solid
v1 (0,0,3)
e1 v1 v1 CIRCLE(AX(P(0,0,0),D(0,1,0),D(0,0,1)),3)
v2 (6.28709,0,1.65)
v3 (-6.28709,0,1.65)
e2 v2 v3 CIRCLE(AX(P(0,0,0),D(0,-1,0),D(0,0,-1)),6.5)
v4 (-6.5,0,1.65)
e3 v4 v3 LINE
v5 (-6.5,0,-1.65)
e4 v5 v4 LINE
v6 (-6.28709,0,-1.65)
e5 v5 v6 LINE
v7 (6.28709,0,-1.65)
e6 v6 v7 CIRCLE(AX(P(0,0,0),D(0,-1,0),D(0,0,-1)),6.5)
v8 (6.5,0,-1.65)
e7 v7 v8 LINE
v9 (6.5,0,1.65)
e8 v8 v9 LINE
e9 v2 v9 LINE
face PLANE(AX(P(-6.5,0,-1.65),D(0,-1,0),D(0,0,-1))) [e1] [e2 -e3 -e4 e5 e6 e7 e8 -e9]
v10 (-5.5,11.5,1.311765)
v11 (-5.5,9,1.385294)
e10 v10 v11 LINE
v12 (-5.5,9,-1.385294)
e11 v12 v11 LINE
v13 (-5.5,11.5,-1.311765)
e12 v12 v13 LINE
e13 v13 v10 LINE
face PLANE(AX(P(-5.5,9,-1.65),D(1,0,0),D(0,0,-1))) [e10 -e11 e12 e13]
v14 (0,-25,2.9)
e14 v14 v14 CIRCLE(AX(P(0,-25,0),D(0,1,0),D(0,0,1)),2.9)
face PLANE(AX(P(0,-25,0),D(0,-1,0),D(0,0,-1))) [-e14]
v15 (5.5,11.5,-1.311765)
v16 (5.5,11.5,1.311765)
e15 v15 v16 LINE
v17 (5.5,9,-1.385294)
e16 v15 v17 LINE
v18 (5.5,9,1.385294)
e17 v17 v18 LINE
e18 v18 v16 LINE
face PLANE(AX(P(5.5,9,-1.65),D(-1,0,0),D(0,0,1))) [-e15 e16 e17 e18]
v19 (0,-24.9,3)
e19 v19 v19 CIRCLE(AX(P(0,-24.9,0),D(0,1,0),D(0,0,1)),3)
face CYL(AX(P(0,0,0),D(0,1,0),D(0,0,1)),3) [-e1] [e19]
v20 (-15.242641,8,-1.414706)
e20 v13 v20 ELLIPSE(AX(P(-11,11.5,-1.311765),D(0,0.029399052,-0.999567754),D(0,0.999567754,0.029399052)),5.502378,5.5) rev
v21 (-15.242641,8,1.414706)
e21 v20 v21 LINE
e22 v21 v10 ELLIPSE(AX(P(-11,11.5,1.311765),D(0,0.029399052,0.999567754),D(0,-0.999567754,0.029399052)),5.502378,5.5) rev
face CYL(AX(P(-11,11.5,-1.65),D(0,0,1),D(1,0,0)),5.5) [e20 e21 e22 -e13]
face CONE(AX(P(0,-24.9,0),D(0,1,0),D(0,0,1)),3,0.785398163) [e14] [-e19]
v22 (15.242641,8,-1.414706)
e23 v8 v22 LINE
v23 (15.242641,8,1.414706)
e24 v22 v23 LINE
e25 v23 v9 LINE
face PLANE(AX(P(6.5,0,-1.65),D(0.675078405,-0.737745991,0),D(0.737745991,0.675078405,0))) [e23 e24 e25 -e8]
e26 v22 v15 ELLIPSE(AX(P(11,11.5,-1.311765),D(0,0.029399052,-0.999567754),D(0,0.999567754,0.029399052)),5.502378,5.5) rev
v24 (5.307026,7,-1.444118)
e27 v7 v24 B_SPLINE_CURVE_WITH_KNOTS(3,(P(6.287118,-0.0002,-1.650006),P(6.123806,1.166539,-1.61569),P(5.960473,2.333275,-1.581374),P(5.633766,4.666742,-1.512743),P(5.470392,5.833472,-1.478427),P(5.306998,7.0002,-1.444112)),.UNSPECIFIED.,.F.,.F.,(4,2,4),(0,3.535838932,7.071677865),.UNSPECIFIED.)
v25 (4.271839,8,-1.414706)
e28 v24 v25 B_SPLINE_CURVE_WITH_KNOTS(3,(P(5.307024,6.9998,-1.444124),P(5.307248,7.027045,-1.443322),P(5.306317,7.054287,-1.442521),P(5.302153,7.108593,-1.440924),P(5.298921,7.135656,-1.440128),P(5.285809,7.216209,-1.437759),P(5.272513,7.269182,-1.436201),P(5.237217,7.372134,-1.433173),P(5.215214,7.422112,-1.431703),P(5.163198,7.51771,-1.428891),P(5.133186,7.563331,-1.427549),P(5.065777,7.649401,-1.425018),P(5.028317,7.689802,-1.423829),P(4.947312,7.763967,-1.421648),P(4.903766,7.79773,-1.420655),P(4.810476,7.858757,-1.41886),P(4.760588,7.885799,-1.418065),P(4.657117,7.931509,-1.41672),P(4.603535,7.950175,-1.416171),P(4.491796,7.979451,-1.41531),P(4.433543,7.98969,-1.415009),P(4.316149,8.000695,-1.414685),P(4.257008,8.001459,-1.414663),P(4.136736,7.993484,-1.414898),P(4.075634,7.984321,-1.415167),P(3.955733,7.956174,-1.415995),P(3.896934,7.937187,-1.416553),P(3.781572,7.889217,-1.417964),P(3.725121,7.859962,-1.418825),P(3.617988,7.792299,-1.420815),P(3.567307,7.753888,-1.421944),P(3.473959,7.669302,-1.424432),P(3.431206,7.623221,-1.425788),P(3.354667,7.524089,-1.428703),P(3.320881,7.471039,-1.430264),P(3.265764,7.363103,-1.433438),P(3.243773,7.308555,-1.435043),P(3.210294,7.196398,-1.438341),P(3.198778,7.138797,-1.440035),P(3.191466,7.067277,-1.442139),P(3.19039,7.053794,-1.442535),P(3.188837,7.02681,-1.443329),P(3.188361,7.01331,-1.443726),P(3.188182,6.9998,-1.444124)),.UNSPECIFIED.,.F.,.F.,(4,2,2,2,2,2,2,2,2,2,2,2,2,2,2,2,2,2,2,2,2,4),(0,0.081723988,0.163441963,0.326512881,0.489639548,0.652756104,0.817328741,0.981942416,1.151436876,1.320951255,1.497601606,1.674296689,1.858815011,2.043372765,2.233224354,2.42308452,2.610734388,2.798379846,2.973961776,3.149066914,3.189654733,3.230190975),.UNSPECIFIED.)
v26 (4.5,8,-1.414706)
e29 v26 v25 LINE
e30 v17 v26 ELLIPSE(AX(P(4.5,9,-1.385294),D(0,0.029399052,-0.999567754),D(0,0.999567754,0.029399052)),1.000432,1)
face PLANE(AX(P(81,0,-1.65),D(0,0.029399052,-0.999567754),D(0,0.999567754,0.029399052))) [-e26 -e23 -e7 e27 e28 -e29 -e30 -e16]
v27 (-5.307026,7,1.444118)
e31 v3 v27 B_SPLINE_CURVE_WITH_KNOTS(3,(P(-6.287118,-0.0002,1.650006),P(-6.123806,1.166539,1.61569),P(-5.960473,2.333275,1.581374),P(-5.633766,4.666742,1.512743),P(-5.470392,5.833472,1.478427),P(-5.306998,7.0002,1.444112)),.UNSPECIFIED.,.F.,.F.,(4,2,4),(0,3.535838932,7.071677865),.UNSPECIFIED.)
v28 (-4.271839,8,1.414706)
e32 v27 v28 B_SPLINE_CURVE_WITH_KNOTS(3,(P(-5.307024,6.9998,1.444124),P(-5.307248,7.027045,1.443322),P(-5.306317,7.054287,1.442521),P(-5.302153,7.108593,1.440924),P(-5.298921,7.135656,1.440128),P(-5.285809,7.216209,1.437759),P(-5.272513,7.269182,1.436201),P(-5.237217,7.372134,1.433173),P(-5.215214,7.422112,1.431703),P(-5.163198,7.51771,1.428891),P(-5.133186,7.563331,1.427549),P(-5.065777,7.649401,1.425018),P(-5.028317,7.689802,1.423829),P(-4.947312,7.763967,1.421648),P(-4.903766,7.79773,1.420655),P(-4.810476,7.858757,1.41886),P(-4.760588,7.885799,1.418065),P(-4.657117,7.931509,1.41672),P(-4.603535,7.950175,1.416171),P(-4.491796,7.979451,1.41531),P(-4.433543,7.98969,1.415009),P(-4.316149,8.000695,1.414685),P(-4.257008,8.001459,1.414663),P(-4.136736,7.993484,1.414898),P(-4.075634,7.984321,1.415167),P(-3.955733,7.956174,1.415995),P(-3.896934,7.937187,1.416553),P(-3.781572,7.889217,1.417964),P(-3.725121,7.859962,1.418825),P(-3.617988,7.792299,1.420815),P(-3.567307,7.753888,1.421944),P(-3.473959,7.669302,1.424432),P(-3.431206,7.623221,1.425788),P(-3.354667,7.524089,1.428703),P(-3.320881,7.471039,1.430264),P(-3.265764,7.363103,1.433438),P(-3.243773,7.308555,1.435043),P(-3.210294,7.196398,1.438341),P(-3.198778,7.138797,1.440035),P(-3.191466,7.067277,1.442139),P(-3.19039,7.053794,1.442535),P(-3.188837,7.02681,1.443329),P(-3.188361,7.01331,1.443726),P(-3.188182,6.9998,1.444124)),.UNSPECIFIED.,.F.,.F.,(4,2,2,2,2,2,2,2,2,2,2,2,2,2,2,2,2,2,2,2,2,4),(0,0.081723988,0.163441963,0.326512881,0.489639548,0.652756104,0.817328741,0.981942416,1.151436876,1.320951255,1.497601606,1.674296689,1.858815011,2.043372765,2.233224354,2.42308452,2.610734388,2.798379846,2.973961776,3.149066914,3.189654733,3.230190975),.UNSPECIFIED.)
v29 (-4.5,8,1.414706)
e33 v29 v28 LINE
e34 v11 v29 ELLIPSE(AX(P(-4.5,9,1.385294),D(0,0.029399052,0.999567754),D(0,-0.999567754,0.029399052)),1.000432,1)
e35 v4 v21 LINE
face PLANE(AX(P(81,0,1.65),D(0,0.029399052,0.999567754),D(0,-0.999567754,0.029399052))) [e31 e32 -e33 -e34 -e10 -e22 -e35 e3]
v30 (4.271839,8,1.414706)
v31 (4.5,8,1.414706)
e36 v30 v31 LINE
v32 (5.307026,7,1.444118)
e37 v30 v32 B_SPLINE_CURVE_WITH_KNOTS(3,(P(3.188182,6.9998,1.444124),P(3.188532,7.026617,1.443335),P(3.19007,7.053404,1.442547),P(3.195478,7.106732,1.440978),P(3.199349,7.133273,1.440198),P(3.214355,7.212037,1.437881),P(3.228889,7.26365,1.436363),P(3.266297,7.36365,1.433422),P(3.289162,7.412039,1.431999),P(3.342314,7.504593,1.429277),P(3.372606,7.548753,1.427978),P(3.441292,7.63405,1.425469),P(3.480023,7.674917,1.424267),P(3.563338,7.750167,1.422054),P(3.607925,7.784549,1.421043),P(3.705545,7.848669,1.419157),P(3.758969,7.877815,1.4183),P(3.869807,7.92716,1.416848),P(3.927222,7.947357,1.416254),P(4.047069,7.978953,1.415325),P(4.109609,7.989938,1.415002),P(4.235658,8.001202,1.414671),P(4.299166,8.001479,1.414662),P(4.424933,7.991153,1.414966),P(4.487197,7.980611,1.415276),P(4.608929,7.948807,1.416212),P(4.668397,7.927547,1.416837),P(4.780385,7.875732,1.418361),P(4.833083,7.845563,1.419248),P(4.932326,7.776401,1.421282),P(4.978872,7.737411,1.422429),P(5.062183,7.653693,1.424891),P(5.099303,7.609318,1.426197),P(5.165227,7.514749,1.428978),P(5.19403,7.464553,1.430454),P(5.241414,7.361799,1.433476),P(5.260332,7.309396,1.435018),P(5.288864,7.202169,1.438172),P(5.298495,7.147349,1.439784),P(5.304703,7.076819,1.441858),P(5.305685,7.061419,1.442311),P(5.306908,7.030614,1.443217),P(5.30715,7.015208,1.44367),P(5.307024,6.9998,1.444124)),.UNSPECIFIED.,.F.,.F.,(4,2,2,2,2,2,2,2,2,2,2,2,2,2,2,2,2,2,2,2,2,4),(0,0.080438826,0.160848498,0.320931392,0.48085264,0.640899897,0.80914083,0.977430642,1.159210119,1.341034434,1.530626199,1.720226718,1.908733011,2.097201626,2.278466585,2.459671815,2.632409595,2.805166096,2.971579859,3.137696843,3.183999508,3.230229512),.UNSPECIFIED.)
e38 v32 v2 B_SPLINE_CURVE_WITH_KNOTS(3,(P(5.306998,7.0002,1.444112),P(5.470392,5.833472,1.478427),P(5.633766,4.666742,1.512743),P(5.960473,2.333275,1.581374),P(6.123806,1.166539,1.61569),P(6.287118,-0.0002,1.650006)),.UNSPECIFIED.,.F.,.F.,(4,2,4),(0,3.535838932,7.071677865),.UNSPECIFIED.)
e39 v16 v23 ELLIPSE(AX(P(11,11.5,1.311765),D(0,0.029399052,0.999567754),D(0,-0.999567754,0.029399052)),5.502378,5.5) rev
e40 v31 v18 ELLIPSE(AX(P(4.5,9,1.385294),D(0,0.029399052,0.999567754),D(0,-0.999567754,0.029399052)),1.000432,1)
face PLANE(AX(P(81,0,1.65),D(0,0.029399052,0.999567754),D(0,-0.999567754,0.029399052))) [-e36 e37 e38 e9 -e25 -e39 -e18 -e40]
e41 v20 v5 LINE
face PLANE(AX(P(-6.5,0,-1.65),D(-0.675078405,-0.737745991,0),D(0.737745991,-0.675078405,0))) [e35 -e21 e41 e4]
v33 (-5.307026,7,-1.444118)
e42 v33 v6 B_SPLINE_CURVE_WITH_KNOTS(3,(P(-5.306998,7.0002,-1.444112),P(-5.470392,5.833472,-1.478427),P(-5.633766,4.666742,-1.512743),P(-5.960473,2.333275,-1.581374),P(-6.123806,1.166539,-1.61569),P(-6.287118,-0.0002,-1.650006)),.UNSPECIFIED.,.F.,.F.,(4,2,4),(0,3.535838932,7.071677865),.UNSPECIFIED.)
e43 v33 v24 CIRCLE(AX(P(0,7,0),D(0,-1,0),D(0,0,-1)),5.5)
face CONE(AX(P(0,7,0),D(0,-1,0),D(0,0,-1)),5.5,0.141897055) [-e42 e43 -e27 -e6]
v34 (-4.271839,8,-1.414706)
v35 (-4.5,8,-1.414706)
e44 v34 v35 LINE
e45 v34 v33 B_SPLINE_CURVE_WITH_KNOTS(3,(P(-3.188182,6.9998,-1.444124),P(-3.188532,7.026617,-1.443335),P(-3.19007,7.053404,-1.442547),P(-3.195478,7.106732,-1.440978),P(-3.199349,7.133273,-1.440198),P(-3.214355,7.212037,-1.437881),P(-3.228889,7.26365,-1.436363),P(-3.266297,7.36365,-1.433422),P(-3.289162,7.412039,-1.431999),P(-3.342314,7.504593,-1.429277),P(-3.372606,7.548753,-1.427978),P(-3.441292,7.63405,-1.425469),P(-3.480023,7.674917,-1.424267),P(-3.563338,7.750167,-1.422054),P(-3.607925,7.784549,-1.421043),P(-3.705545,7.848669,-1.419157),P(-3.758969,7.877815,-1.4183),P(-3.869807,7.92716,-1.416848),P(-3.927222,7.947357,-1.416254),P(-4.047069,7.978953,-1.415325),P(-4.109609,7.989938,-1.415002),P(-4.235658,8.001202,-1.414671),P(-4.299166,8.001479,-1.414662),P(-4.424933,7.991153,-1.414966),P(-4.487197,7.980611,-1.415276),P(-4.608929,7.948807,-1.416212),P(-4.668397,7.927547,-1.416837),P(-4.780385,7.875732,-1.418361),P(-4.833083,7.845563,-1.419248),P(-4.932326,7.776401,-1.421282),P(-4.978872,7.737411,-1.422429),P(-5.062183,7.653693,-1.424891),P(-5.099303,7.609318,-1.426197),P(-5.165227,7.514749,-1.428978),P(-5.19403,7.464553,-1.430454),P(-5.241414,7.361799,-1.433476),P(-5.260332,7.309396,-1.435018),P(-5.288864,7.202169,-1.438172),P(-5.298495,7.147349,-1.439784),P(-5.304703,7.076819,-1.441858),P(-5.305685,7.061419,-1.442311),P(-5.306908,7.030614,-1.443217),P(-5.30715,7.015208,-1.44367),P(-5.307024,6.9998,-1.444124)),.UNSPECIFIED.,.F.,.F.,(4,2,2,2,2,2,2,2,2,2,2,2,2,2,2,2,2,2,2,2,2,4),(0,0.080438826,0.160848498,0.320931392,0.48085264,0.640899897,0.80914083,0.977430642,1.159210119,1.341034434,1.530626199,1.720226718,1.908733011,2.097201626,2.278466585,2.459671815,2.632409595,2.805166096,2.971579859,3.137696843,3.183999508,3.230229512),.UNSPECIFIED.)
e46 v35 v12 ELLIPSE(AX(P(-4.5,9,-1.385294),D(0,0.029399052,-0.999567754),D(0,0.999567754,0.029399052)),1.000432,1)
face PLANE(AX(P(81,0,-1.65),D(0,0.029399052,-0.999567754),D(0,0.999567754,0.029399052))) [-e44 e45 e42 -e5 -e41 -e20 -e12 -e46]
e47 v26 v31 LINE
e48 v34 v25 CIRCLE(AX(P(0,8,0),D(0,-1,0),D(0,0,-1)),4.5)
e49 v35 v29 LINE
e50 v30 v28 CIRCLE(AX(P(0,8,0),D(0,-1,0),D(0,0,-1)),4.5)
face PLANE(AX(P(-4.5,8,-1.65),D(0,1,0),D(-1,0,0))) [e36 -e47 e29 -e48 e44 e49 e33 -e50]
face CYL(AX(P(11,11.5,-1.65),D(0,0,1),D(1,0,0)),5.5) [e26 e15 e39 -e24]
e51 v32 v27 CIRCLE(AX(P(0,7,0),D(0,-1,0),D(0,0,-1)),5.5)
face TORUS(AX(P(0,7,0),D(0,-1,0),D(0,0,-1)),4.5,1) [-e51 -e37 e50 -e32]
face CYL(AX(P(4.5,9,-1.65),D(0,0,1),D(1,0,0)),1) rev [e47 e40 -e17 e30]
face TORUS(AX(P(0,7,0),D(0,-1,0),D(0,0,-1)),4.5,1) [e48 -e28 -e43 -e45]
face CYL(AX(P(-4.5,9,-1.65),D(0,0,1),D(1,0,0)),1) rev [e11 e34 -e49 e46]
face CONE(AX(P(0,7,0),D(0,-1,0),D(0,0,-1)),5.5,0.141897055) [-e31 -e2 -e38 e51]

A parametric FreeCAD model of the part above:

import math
import FreeCAD as App
import Part
import Sketcher
from FreeCAD import Vector
Q = App.Units.Quantity


def add_polygon(sketch, points):
    """Adds a closed chain of lines whose ends are joined by coincident constraints."""
    first, n = sketch.GeometryCount, len(points)
    for a, b in zip(points, points[1:] + points[:1]):
        sketch.addGeometry(Part.LineSegment(App.Vector(*a, 0), App.Vector(*b, 0)), False)
    for i in range(n):
        sketch.addConstraint(Sketcher.Constraint("Coincident", first + i, 2, first + (i + 1) % n, 1))

doc = App.newDocument("Part")
body = doc.addObject("PartDesign::Body", "Body")

# Sketch on XY plane
sketch1 = doc.addObject("Sketcher::SketchObject", "Sketch")
body.addObject(sketch1)
sketch1.AttachmentSupport = (doc.XY_Plane, [""])
sketch1.MapMode = "FlatFace"
sketch1.addGeometry(Part.LineSegment(Vector(-15.2, 8, 0), Vector(-6.5, 0, 0)), False)
sketch1.addGeometry(Part.LineSegment(Vector(-6.5, 0, 0), Vector(6.5, 0, 0)), False)
sketch1.addGeometry(Part.LineSegment(Vector(6.5, 0, 0), Vector(15.2, 8, 0)), False)
sketch1.addGeometry(Part.ArcOfCircle(Part.Circle(Vector(11, 11.5, 0), Vector(0, 0, 1), 5.5), math.radians(-40), math.radians(180)), False)
sketch1.addGeometry(Part.LineSegment(Vector(5.5, 11.5, 0), Vector(5.5, 9, 0)), False)
sketch1.addGeometry(Part.ArcOfCircle(Part.Circle(Vector(4.5, 9, 0), Vector(0, 0, 1), 1), math.radians(-90), math.radians(0)), False)
sketch1.addGeometry(Part.LineSegment(Vector(4.5, 8, 0), Vector(-4.5, 8, 0)), False)
sketch1.addGeometry(Part.ArcOfCircle(Part.Circle(Vector(-4.5, 9, 0), Vector(0, 0, 1), 1), math.radians(-180), math.radians(-90)), False)
sketch1.addGeometry(Part.LineSegment(Vector(-5.5, 9, 0), Vector(-5.5, 11.5, 0)), False)
sketch1.addGeometry(Part.ArcOfCircle(Part.Circle(Vector(-11, 11.5, 0), Vector(0, 0, 1), 5.5), math.radians(0), math.radians(220)), False)
sketch1.addConstraint(Sketcher.Constraint("Coincident", 0, 2, 1, 1))
sketch1.addConstraint(Sketcher.Constraint("Coincident", 1, 2, 2, 1))
sketch1.addConstraint(Sketcher.Constraint("Coincident", 2, 2, 3, 1))
sketch1.addConstraint(Sketcher.Constraint("Tangent", 3, 2, 4, 1))
sketch1.addConstraint(Sketcher.Constraint("Tangent", 4, 2, 5, 2))
sketch1.addConstraint(Sketcher.Constraint("Tangent", 5, 1, 6, 1))
sketch1.addConstraint(Sketcher.Constraint("Tangent", 6, 2, 7, 2))
sketch1.addConstraint(Sketcher.Constraint("Tangent", 7, 1, 8, 1))
sketch1.addConstraint(Sketcher.Constraint("Tangent", 8, 2, 9, 1))
sketch1.addConstraint(Sketcher.Constraint("Coincident", 9, 2, 0, 1))
sketch1.addConstraint(Sketcher.Constraint("Horizontal", 1))
sketch1.addConstraint(Sketcher.Constraint("Vertical", 4))
sketch1.addConstraint(Sketcher.Constraint("Horizontal", 6))
sketch1.addConstraint(Sketcher.Constraint("Vertical", 8))
sketch1.addConstraint(Sketcher.Constraint("Equal", 5, 7))
sketch1.addConstraint(Sketcher.Constraint("Equal", 3, 9))
sketch1.addConstraint(Sketcher.Constraint("Symmetric", 0, 2, 1, 2, -1, 1))
sketch1.addConstraint(Sketcher.Constraint("Symmetric", 3, 3, 9, 3, -2))
sketch1.addConstraint(Sketcher.Constraint("Horizontal", 2, 2, 5, 1))
sketch1.addConstraint(Sketcher.Constraint("Horizontal", 6, 2, 9, 2))
sketch1.addConstraint(Sketcher.Constraint("Radius", 5, 1.0))
sketch1.addConstraint(Sketcher.Constraint("Radius", 3, 5.5))
sketch1.addConstraint(Sketcher.Constraint("DistanceX", 1, 1, 1, 2, 13.0))
sketch1.addConstraint(Sketcher.Constraint("DistanceX", 6, 2, 6, 1, 9.0))
sketch1.addConstraint(Sketcher.Constraint("DistanceY", 4, 2, 4, 1, 2.5))
sketch1.addConstraint(Sketcher.Constraint("DistanceY", -1, 1, 5, 3, 9.0))
pad1 = doc.addObject("PartDesign::Pad", "Pad")
body.addObject(pad1)
pad1.Profile = sketch1
pad1.Type = "TwoLengths"
pad1.Length = 1.65
pad1.Length2 = 1.65

# Sketch on YZ plane
sketch2 = doc.addObject("Sketcher::SketchObject", "Sketch001")
body.addObject(sketch2)
sketch2.AttachmentSupport = (doc.YZ_Plane, [""])
sketch2.MapMode = "FlatFace"
add_polygon(sketch2, [(0, 3), (0, 1.6), (17, 1.1), (17, 3)])  # lines 0-3
add_polygon(sketch2, [(17, -3), (17, -1.1), (0, -1.6), (0, -3)])  # lines 4-7
sketch2.addConstraint(Sketcher.Constraint("Vertical", 0))
sketch2.addConstraint(Sketcher.Constraint("Vertical", 2))
sketch2.addConstraint(Sketcher.Constraint("Horizontal", 3))
sketch2.addConstraint(Sketcher.Constraint("Vertical", 4))
sketch2.addConstraint(Sketcher.Constraint("Vertical", 6))
sketch2.addConstraint(Sketcher.Constraint("Horizontal", 7))
sketch2.addConstraint(Sketcher.Constraint("Symmetric", 0, 2, 5, 2, -1, 1))
sketch2.addConstraint(Sketcher.Constraint("Symmetric", 1, 2, 4, 2, -1))
sketch2.addConstraint(Sketcher.Constraint("Symmetric", 3, 2, 6, 2, -1))
sketch2.addConstraint(Sketcher.Constraint("DistanceX", 3, 2, 3, 1, 17.0))
sketch2.addConstraint(Sketcher.Constraint("DistanceY", -1, 1, 2, 2, 3.0))
sketch2.addConstraint(Sketcher.Constraint("DistanceY", 0, 2, 0, 1, 1.35))
sketch2.addConstraint(Sketcher.Constraint("DistanceY", 2, 1, 2, 2, 1.85))
pocket1 = doc.addObject("PartDesign::Pocket", "Pocket")
body.addObject(pocket1)
pocket1.Profile = sketch2
pocket1.Type = "ThroughAll"
pocket1.Midplane = True

# Sketch on YZ plane
sketch3 = doc.addObject("Sketcher::SketchObject", "Sketch002")
body.addObject(sketch3)
sketch3.AttachmentSupport = (doc.YZ_Plane, [""])
sketch3.MapMode = "FlatFace"
sketch3.addGeometry(Part.LineSegment(Vector(0, 6.5, 0), Vector(0, 0, 0)), False)
sketch3.addGeometry(Part.LineSegment(Vector(0, 0, 0), Vector(8, 0, 0)), False)
sketch3.addGeometry(Part.LineSegment(Vector(8, 0, 0), Vector(8, 4.5, 0)), False)
sketch3.addGeometry(Part.ArcOfCircle(Part.Circle(Vector(7, 4.5, 0), Vector(0, 0, 1), 1), math.radians(0), math.radians(90)), False)
sketch3.addGeometry(Part.LineSegment(Vector(7, 5.5, 0), Vector(0, 6.5, 0)), False)
sketch3.addConstraint(Sketcher.Constraint("Coincident", 0, 2, 1, 1))
sketch3.addConstraint(Sketcher.Constraint("Coincident", 1, 2, 2, 1))
sketch3.addConstraint(Sketcher.Constraint("Tangent", 2, 2, 3, 1))
sketch3.addConstraint(Sketcher.Constraint("Coincident", 3, 2, 4, 1))
sketch3.addConstraint(Sketcher.Constraint("Coincident", 4, 2, 0, 1))
sketch3.addConstraint(Sketcher.Constraint("Vertical", 0))
sketch3.addConstraint(Sketcher.Constraint("Horizontal", 1))
sketch3.addConstraint(Sketcher.Constraint("Vertical", 2))
sketch3.addConstraint(Sketcher.Constraint("Coincident", 0, 2, -1, 1))
sketch3.addConstraint(Sketcher.Constraint("Radius", 3, 1.0))
sketch3.addConstraint(Sketcher.Constraint("DistanceX", 1, 1, 1, 2, 8.0))
sketch3.addConstraint(Sketcher.Constraint("DistanceY", 0, 2, 0, 1, 6.5))
sketch3.addConstraint(Sketcher.Constraint("DistanceY", 2, 1, 2, 2, 4.5))
sketch3.addConstraint(Sketcher.Constraint("DistanceX", -1, 1, 3, 2, 7.0))
revolution = doc.addObject("PartDesign::Revolution", "Revolution")
body.addObject(revolution)
revolution.Profile = sketch3
revolution.ReferenceAxis = (sketch3, ["H_Axis"])
revolution.Angle = 360

# Sketch on YZ plane
sketch4 = doc.addObject("Sketcher::SketchObject", "Sketch003")
body.addObject(sketch4)
sketch4.AttachmentSupport = (doc.YZ_Plane, [""])
sketch4.MapMode = "FlatFace"
add_polygon(sketch4, [(-25, 2.9), (-25, 0), (0, 0), (0, 3), (-24.9, 3)])  # lines 0-4
sketch4.addConstraint(Sketcher.Constraint("Vertical", 0))
sketch4.addConstraint(Sketcher.Constraint("Horizontal", 1))
sketch4.addConstraint(Sketcher.Constraint("Vertical", 2))
sketch4.addConstraint(Sketcher.Constraint("Horizontal", 3))
sketch4.addConstraint(Sketcher.Constraint("Coincident", 1, 2, -1, 1))
sketch4.addConstraint(Sketcher.Constraint("DistanceX", 1, 1, 1, 2, 25.0))
sketch4.addConstraint(Sketcher.Constraint("DistanceY", 2, 1, 2, 2, 3.0))
sketch4.addConstraint(Sketcher.Constraint("Angle", 4, Q("-135 deg")))
sketch4.addConstraint(Sketcher.Constraint("DistanceX", 3, 2, 3, 1, 24.9))
revolution2 = doc.addObject("PartDesign::Revolution", "Revolution001")
body.addObject(revolution2)
revolution2.Profile = sketch4
revolution2.ReferenceAxis = (sketch4, ["H_Axis"])
revolution2.Angle = 360

doc.recompute()
